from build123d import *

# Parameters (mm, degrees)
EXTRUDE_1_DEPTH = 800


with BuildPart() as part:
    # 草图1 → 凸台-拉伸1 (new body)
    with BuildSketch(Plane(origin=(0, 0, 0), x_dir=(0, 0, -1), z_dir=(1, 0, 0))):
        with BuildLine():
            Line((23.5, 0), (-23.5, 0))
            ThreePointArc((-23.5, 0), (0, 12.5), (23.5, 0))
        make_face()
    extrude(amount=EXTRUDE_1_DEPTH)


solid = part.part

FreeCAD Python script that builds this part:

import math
import FreeCAD as App
import Part
import Sketcher

doc = App.newDocument("Part")
body = doc.addObject("PartDesign::Body", "Body")

# Sketch on YZ plane
sketch1 = body.newObject("Sketcher::SketchObject", "Sketch")
sketch1.AttachmentSupport = (doc.getObject("YZ_Plane"), [""])
sketch1.MapMode = "FlatFace"
sketch1.addGeometry(Part.LineSegment(App.Vector(0, 24, 0), App.Vector(0, -24, 0)), False)
sketch1.addGeometry(Part.ArcOfCircle(Part.Circle(App.Vector(-16, 0, 0), App.Vector(0, 0, 1), 28), math.radians(-56), math.radians(56)), False)
sketch1.addConstraint(Sketcher.Constraint("Coincident", 0, 1, 1, 2))
sketch1.addConstraint(Sketcher.Constraint("Coincident", 1, 1, 0, 2))
sketch1.addConstraint(Sketcher.Constraint("Vertical", 0))
sketch1.addConstraint(Sketcher.Constraint("Symmetric", 0, 1, 1, 1, -1, 1))
sketch1.addConstraint(Sketcher.Constraint("DistanceY", 0, 2, 0, 1, 47.0))
sketch1.addConstraint(Sketcher.Constraint("Radius", 1, 28.34))
pad1 = body.newObject("PartDesign::Pad", "Pad")
pad1.Profile = sketch1
pad1.Length = 800

doc.recompute()
